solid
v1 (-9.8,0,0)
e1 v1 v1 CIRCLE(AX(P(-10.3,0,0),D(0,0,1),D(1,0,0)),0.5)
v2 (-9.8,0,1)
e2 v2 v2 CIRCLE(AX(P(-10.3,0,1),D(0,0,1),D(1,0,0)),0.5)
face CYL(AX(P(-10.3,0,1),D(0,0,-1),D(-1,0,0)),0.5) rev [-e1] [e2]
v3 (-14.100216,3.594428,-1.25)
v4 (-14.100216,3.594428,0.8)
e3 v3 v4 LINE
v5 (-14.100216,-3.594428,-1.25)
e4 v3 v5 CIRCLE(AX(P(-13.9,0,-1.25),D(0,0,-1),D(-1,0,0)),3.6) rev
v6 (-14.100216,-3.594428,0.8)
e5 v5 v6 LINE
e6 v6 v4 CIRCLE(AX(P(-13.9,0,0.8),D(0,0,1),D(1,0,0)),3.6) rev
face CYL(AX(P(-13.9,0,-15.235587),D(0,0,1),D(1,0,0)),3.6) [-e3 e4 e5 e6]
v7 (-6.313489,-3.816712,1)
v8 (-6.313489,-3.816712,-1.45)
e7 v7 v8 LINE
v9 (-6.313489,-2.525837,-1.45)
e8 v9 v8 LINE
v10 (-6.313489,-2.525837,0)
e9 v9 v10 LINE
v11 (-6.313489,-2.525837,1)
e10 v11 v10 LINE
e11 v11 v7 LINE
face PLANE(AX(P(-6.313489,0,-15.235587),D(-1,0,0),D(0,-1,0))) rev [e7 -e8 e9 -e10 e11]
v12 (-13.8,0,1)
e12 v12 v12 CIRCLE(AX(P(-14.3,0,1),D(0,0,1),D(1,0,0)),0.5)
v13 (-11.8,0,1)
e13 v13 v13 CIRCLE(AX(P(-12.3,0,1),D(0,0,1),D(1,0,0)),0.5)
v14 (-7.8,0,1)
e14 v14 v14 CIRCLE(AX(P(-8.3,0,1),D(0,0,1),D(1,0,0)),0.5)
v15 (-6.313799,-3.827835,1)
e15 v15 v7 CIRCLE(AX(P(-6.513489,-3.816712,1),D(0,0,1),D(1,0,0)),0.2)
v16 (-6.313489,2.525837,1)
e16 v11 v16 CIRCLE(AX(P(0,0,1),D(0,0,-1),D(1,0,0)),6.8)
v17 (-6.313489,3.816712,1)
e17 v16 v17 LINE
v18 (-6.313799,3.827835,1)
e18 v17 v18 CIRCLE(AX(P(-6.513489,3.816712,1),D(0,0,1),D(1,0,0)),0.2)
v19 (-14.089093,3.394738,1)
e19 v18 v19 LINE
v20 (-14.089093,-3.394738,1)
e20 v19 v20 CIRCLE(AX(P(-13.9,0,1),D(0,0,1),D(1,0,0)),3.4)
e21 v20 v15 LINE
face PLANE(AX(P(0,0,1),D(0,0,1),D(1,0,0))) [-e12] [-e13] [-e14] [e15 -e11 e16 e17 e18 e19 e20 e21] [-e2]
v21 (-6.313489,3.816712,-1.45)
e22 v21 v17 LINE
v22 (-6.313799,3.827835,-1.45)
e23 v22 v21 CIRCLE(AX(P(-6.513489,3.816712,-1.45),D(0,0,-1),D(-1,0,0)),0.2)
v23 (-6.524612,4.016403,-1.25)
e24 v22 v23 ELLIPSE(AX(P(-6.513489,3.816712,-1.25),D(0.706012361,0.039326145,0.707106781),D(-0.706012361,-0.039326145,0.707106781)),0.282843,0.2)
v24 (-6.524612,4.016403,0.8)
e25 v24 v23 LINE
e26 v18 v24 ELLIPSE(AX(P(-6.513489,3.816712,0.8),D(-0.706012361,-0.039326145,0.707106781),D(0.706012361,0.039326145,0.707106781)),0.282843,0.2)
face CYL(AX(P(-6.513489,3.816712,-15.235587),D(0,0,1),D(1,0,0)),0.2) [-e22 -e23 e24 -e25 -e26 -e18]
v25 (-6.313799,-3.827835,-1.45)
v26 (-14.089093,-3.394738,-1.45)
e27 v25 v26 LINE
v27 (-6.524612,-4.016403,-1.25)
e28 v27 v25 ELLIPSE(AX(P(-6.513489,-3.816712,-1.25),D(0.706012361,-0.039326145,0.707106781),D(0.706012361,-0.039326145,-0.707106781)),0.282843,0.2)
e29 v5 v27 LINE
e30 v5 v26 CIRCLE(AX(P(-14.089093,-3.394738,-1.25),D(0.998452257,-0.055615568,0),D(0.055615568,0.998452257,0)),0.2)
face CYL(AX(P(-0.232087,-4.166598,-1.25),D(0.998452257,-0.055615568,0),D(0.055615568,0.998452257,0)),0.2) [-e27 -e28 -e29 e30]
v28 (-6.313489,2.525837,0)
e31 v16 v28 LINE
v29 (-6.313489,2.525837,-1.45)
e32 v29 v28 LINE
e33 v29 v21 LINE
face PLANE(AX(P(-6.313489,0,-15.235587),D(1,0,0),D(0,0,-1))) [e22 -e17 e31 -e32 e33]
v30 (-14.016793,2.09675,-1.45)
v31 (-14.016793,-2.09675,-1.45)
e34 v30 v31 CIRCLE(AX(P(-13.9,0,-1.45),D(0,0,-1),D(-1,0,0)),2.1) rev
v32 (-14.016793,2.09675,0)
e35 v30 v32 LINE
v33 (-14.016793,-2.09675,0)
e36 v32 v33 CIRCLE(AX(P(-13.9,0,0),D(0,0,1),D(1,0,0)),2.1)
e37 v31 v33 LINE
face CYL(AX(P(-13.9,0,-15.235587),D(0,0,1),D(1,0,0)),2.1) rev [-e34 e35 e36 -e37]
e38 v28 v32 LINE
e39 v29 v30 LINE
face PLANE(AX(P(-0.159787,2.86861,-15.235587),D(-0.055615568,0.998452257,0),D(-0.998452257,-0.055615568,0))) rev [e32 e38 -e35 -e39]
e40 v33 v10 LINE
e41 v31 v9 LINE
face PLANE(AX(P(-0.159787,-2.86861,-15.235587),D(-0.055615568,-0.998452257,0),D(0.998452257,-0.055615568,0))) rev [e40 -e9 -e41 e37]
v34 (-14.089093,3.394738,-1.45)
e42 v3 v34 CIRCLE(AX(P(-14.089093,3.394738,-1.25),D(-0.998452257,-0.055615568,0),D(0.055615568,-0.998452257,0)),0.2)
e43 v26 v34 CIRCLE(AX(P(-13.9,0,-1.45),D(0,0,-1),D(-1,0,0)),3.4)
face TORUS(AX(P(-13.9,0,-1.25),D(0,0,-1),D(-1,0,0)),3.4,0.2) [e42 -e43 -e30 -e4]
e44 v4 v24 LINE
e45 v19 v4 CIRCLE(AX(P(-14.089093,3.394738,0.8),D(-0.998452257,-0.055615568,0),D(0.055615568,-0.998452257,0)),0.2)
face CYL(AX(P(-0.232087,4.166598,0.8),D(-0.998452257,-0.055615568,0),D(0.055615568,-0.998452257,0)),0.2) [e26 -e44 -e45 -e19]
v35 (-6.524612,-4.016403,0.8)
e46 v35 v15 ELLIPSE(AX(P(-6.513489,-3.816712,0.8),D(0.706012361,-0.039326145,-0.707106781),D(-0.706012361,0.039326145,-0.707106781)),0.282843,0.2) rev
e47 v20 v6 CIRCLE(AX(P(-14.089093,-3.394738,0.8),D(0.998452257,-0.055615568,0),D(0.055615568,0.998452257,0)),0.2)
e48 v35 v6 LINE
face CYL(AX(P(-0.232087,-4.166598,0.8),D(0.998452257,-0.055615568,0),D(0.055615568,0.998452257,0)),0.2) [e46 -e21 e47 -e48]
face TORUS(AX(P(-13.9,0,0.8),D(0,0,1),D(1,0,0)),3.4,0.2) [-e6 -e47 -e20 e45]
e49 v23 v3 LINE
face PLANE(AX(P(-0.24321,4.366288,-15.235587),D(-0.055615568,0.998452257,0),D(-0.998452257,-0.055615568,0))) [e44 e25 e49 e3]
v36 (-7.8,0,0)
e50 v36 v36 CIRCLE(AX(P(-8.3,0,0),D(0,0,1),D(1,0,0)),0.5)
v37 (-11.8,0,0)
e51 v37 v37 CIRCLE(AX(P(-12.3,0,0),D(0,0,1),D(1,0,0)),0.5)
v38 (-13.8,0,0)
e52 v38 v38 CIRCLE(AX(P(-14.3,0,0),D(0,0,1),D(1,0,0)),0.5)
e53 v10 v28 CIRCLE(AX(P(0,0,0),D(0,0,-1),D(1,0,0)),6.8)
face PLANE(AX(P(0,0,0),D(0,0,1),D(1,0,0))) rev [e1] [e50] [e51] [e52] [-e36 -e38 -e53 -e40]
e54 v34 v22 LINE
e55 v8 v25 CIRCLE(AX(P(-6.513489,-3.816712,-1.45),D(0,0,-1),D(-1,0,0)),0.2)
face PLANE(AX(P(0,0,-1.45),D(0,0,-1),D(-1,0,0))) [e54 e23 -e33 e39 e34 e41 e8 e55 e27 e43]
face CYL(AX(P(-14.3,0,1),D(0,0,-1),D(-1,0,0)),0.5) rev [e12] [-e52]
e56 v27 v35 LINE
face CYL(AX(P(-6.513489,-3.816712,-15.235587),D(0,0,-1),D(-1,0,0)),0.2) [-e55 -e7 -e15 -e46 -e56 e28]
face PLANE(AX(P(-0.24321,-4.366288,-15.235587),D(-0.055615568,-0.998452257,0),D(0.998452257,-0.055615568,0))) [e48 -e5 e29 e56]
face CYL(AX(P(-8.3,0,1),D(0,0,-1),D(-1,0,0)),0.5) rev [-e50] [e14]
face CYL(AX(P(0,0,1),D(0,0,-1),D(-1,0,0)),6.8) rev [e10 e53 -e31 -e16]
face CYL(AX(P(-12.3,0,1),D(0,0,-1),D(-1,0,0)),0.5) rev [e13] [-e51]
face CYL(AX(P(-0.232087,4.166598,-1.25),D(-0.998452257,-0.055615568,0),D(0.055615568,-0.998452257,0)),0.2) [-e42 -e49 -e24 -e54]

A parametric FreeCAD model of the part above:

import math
import FreeCAD as App
import Part
import Sketcher


def edges_at(feature, points):
    """Names of the edges that pass closest to the given points."""
    edges = feature.Shape.Edges
    near = lambda p: min(range(len(edges)), key=lambda i: edges[i].distToShape(Part.Vertex(*p))[0])
    return sorted({f"Edge{near(p) + 1}" for p in points})

doc = App.newDocument("Part")
params = doc.addObject("Spreadsheet::Sheet", "Params")
for row, (alias, value) in enumerate([
    ("sketch1_diameter", "1 mm"),
    ("sketch1_radius", "6.8 mm"),
    ("sketch1_radius2", "2.1 mm"),
    ("pad1_length", "1 mm"),
    ("sketch2_radius", "3.6 mm"),
    ("sketch2_radius2", "2.1 mm"),
    ("pad2_length", "2.45 mm"),
    ("fillet_radius", "0.2 mm"),
], start=1):
    params.set(f"A{row}", alias)
    params.set(f"B{row}", "=" + value)
    params.setAlias(f"B{row}", alias)

body = doc.addObject("PartDesign::Body", "Body")

# Sketch on XY plane
sketch1 = doc.addObject("Sketcher::SketchObject", "Sketch")
body.addObject(sketch1)
sketch1.AttachmentSupport = (doc.XY_Plane, [""])
sketch1.MapMode = "FlatFace"
sketch1.addGeometry([
    Part.LineSegment(App.Vector(-14.016793, -2.09675, 0), App.Vector(-6.313489, -2.525837, 0)),  # 0
    Part.ArcOfCircle(Part.Circle(App.Vector(0, 0, 0), App.Vector(0, 0, 1), 6.8), math.radians(158.195134), math.radians(201.804866)),  # 1
    Part.LineSegment(App.Vector(-6.313489, 2.525837, 0), App.Vector(-14.016793, 2.09675, 0)),  # 2
    Part.ArcOfCircle(Part.Circle(App.Vector(-13.9, 0, 0), App.Vector(0, 0, 1), 2.1), math.radians(93.188182), math.radians(266.811818)),  # 3
    Part.Circle(App.Vector(-14.3, 0, 0), App.Vector(0, 0, 1), 0.5),  # 4
    Part.Circle(App.Vector(-12.3, 0, 0), App.Vector(0, 0, 1), 0.5),  # 5
    Part.Circle(App.Vector(-10.3, 0, 0), App.Vector(0, 0, 1), 0.5),  # 6
    Part.Circle(App.Vector(-8.3, 0, 0), App.Vector(0, 0, 1), 0.5),  # 7
], False)
sketch1.addConstraint([
    Sketcher.Constraint("Coincident", 0, 2, 1, 2),
    Sketcher.Constraint("Coincident", 1, 1, 2, 1),
    Sketcher.Constraint("Tangent", 2, 2, 3, 1),
    Sketcher.Constraint("Tangent", 3, 2, 0, 1),
    Sketcher.Constraint("Coincident", 1, 3, -1, 1),
    Sketcher.Constraint("Equal", 4, 5),
    Sketcher.Constraint("Equal", 5, 6),
    Sketcher.Constraint("Equal", 6, 7),
    Sketcher.Constraint("Symmetric", 2, 2, 3, 2, -1),
    Sketcher.Constraint("PointOnObject", 4, 3, -1),
    Sketcher.Constraint("PointOnObject", 5, 3, -1),
    Sketcher.Constraint("PointOnObject", 6, 3, -1),
    Sketcher.Constraint("PointOnObject", 7, 3, -1),
    Sketcher.Constraint("Diameter", 4, 1.0),
    Sketcher.Constraint("Radius", 1, 6.8),
    Sketcher.Constraint("Radius", 3, 2.1),
    Sketcher.Constraint("DistanceX", 4, 3, 5, 3, 2.0),
    Sketcher.Constraint("DistanceX", 5, 3, 6, 3, 2.0),
    Sketcher.Constraint("DistanceX", 6, 3, 7, 3, 2.0),
    Sketcher.Constraint("DistanceX", 3, 3, -1, 1, 13.9),
    Sketcher.Constraint("DistanceX", 4, 3, -1, 1, 14.3),
    Sketcher.Constraint("DistanceY", 3, 2, 2, 2, 4.193499),
])
sketch1.setExpression("Constraints[13]", "Params.sketch1_diameter")
sketch1.setExpression("Constraints[14]", "Params.sketch1_radius")
sketch1.setExpression("Constraints[15]", "Params.sketch1_radius2")
pad1 = doc.addObject("PartDesign::Pad", "Pad")
body.addObject(pad1)
pad1.Profile = sketch1
pad1.setExpression("Length", "Params.pad1_length")

# Sketch on XY plane
sketch2 = doc.addObject("Sketcher::SketchObject", "Sketch001")
body.addObject(sketch2)
sketch2.AttachmentSupport = (doc.XY_Plane, [""])
sketch2.MapMode = "FlatFace"
sketch2.AttachmentOffset = App.Placement(App.Vector(0, 0, -1.45), App.Rotation())
sketch2.addGeometry([
    Part.LineSegment(App.Vector(-6.313489, 4.028163, 0), App.Vector(-14.100216, 3.594428, 0)),  # 0
    Part.ArcOfCircle(Part.Circle(App.Vector(-13.9, 0, 0), App.Vector(0, 0, 1), 3.6), math.radians(93.188182), math.radians(266.811818)),  # 1
    Part.LineSegment(App.Vector(-14.100216, -3.594428, 0), App.Vector(-6.313489, -4.028163, 0)),  # 2
    Part.LineSegment(App.Vector(-6.313489, -4.028163, 0), App.Vector(-6.313489, -2.525837, 0)),  # 3
    Part.LineSegment(App.Vector(-6.313489, -2.525837, 0), App.Vector(-14.016793, -2.09675, 0)),  # 4
    Part.ArcOfCircle(Part.Circle(App.Vector(-13.9, 0, 0), App.Vector(0, 0, 1), 2.1), math.radians(93.188182), math.radians(266.811818)),  # 5
    Part.LineSegment(App.Vector(-14.016793, 2.09675, 0), App.Vector(-6.313489, 2.525837, 0)),  # 6
    Part.LineSegment(App.Vector(-6.313489, 2.525837, 0), App.Vector(-6.313489, 4.028163, 0)),  # 7
], False)
sketch2.addConstraint([
    Sketcher.Constraint("Tangent", 0, 2, 1, 1),
    Sketcher.Constraint("Tangent", 1, 2, 2, 1),
    Sketcher.Constraint("Coincident", 2, 2, 3, 1),
    Sketcher.Constraint("Coincident", 3, 2, 4, 1),
    Sketcher.Constraint("Tangent", 4, 2, 5, 2),
    Sketcher.Constraint("Tangent", 5, 1, 6, 1),
    Sketcher.Constraint("Coincident", 6, 2, 7, 1),
    Sketcher.Constraint("Coincident", 7, 2, 0, 1),
    Sketcher.Constraint("Vertical", 3),
    Sketcher.Constraint("Vertical", 7),
    Sketcher.Constraint("Coincident", 5, 3, 1, 3),
    Sketcher.Constraint("Symmetric", 0, 2, 1, 2, -1),
    Sketcher.Constraint("Symmetric", 3, 2, 6, 2, -1),
    Sketcher.Constraint("Parallel", 2, 4),
    Sketcher.Constraint("Radius", 1, 3.6),
    Sketcher.Constraint("Radius", 5, 2.1),
    Sketcher.Constraint("DistanceX", 1, 3, -1, 1, 13.9),
    Sketcher.Constraint("DistanceY", 2, 2, 6, 2, 6.554),
    Sketcher.Constraint("DistanceX", 2, 2, -1, 1, 6.313489),
])
sketch2.setExpression("Constraints[14]", "Params.sketch2_radius")
sketch2.setExpression("Constraints[15]", "Params.sketch2_radius2")
pad2 = doc.addObject("PartDesign::Pad", "Pad001")
body.addObject(pad2)
pad2.Profile = sketch2
pad2.setExpression("Length", "Params.pad2_length")
doc.recompute()

fillet = doc.addObject("PartDesign::Fillet", "Fillet")
body.addObject(fillet)
fillet.Base = (pad2, edges_at(pad2, [
    (-10.207, 3.811, 1),
    (-17.5, 0, 1),
    (-10.207, -3.811, 1),
    (-17.5, 0, -1.45),
    (-10.207, -3.811, -1.45),
    (-6.313, -4.028, -0.225),
    (-6.313, 4.028, -0.225),
    (-10.207, 3.811, -1.45),
]))
fillet.setExpression("Radius", "Params.fillet_radius")

doc.recompute()
